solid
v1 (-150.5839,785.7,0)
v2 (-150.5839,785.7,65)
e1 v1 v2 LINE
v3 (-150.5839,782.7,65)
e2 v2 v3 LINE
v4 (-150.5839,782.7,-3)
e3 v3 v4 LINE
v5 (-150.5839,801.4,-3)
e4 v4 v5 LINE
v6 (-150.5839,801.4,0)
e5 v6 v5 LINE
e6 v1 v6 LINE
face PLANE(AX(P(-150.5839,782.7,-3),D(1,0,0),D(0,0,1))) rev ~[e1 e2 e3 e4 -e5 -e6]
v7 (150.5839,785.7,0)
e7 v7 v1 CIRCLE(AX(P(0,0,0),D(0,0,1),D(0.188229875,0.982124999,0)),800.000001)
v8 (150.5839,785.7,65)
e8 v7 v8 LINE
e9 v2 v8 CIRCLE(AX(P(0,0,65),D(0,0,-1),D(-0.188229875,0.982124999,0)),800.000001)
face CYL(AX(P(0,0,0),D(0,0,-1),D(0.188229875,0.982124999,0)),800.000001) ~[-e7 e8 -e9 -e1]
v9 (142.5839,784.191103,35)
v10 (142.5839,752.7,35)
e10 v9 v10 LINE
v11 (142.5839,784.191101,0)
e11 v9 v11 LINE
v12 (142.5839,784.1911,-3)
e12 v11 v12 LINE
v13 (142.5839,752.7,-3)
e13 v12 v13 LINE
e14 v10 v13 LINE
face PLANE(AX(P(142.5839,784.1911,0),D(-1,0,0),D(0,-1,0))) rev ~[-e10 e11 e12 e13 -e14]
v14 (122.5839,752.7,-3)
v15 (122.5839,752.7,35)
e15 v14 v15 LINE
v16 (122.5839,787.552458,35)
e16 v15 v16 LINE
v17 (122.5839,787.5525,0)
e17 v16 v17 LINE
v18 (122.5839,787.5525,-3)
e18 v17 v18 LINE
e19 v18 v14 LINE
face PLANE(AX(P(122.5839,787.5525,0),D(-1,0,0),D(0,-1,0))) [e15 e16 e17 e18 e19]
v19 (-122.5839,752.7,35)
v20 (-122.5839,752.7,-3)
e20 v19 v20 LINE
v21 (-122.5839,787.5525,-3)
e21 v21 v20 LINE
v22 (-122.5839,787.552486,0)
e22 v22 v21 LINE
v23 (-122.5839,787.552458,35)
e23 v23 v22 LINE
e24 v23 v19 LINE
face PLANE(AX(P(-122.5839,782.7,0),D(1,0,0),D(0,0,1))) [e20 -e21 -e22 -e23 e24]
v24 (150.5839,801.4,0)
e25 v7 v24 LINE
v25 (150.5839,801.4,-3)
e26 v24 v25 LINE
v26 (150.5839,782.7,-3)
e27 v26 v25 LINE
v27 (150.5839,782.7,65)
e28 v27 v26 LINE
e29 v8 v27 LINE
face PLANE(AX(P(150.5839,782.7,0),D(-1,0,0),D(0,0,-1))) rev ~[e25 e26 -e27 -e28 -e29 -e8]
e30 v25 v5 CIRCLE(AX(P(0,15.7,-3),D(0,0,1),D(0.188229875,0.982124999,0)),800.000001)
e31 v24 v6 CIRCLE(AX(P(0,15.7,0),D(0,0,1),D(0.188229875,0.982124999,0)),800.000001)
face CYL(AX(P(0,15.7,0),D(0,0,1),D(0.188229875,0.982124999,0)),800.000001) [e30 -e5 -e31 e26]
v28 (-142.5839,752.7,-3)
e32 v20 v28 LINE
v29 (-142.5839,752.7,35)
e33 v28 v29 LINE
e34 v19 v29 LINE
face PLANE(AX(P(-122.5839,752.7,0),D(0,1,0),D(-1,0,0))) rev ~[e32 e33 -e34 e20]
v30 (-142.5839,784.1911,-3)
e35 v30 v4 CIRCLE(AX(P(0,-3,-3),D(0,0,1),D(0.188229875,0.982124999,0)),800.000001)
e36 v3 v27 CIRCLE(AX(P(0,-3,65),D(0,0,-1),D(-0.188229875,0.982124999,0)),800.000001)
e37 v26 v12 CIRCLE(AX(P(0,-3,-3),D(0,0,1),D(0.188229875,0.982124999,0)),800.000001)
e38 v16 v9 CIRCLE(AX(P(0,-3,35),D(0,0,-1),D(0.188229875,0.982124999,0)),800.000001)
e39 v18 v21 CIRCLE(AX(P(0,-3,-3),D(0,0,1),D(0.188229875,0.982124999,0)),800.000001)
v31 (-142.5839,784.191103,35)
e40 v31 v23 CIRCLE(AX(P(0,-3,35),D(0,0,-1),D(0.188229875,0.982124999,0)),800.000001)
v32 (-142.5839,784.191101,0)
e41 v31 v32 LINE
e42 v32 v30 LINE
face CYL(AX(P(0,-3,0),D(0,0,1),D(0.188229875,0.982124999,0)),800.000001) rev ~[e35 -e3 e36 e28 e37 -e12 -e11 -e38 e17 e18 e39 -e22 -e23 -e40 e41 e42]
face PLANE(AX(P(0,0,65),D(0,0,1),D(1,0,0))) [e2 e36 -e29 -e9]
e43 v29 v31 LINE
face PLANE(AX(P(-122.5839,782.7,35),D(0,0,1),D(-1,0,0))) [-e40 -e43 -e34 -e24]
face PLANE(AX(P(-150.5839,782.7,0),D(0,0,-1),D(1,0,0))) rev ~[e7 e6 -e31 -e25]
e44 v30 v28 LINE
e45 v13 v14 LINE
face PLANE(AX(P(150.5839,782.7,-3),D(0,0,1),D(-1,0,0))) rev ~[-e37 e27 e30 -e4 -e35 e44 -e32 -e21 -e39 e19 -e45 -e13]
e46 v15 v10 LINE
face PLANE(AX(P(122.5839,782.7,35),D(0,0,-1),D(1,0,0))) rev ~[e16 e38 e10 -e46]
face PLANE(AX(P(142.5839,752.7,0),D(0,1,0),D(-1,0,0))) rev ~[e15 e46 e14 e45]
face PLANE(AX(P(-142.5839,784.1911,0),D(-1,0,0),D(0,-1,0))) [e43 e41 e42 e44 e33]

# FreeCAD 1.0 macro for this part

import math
import FreeCAD as App
import Part
import Sketcher
from FreeCAD import Vector
Q = App.Units.Quantity

doc = App.newDocument("Part")
params = doc.addObject("Spreadsheet::Sheet", "Params")
for row, (alias, value) in enumerate([
    ("sketch1_height", "3 mm"),
    ("sketch1_radius", "800 mm"),
    ("pad1_length", "65 mm"),
    ("sketch2_width", "20 mm"),
    ("sketch2_height", "35 mm"),
    ("sketch3_width", "20 mm"),
    ("sketch3_height", "35 mm"),
    ("pad3_length", "30 mm"),
    ("sketch4_height", "3 mm"),
    ("pad4_length", "50 mm"),
    ("sketch5_radius", "800 mm"),
    ("pocket1_length", "10 mm"),
    ("sketch6_radius", "800 mm"),
    ("sketch6_height", "31.3 mm"),
    ("pocket2_length", "10 mm"),
    ("sketch7_radius", "800 mm"),
    ("sketch7_width", "20 mm"),
    ("pad5_length", "3 mm"),
], start=1):
    params.set(f"A{row}", alias)
    params.set(f"B{row}", "=" + value)
    params.setAlias(f"B{row}", alias)

body = doc.addObject("PartDesign::Body", "Body")

# Sketch on XY plane
sketch1 = doc.addObject("Sketcher::SketchObject", "Sketch")
body.addObject(sketch1)
sketch1.AttachmentSupport = (doc.XY_Plane, [""])
sketch1.MapMode = "FlatFace"
sketch1.addGeometry([
    Part.LineSegment(Vector(-150.5839, 785.7, 0), Vector(-150.5839, 782.7, 0)),
    Part.ArcOfCircle(Part.Circle(Vector(0, -3, 0), Vector(0, 0, 1), 800.000001), math.radians(79.1505), math.radians(100.8495)),
    Part.LineSegment(Vector(150.5839, 782.7, 0), Vector(150.5839, 785.7, 0)),
    Part.ArcOfCircle(Part.Circle(Vector(0, 0, 0), Vector(0, 0, 1), 800.000001), math.radians(79.1505), math.radians(100.8495)),
], False)
sketch1.addConstraint([
    Sketcher.Constraint("Coincident", 0, 2, 1, 2),
    Sketcher.Constraint("Coincident", 1, 1, 2, 1),
    Sketcher.Constraint("Coincident", 2, 2, 3, 1),
    Sketcher.Constraint("Coincident", 3, 2, 0, 1),
    Sketcher.Constraint("Vertical", 0),
    Sketcher.Constraint("Vertical", 2),
    Sketcher.Constraint("Coincident", 3, 3, -1, 1),
    Sketcher.Constraint("Equal", 1, 3),
    Sketcher.Constraint("PointOnObject", 1, 3, -2),
    Sketcher.Constraint("DistanceY", 0, 2, 0, 1, Q("3 mm")),
    Sketcher.Constraint("Radius", 1, Q("800 mm")),
    Sketcher.Constraint("DistanceY", 0, 2, 2, 2, Q("3 mm")),
    Sketcher.Constraint("DistanceY", -1, 1, 2, 2, Q("785.7 mm")),
])
sketch1.setExpression("Constraints[9]", "Params.sketch1_height")
sketch1.setExpression("Constraints[10]", "Params.sketch1_radius")
pad1 = doc.addObject("PartDesign::Pad", "Pad")
body.addObject(pad1)
pad1.Profile = sketch1
pad1.setExpression("Length", "Params.pad1_length")

# Sketch on XZ plane
sketch2 = doc.addObject("Sketcher::SketchObject", "Sketch001")
body.addObject(sketch2)
sketch2.AttachmentSupport = (doc.XZ_Plane, [""])
sketch2.MapMode = "FlatFace"
sketch2.AttachmentOffset = App.Placement(Vector(0, 0, -782.7), App.Rotation())
sketch2.addGeometry([
    Part.LineSegment(Vector(-142.5839, 0, 0), Vector(-122.5839, 0, 0)),  # 0
    Part.LineSegment(Vector(-122.5839, 0, 0), Vector(-122.5839, 35, 0)),  # 1
    Part.LineSegment(Vector(-122.5839, 35, 0), Vector(-142.5839, 35, 0)),  # 2
    Part.LineSegment(Vector(-142.5839, 35, 0), Vector(-142.5839, 0, 0)),  # 3
    Part.LineSegment(Vector(122.5839, 0, 0), Vector(142.5839, 0, 0)),  # 4
    Part.LineSegment(Vector(142.5839, 0, 0), Vector(142.5839, 35, 0)),  # 5
    Part.LineSegment(Vector(142.5839, 35, 0), Vector(122.5839, 35, 0)),  # 6
    Part.LineSegment(Vector(122.5839, 35, 0), Vector(122.5839, 0, 0)),  # 7
], False)
sketch2.addConstraint([
    Sketcher.Constraint("Coincident", 0, 2, 1, 1),
    Sketcher.Constraint("Coincident", 1, 2, 2, 1),
    Sketcher.Constraint("Coincident", 2, 2, 3, 1),
    Sketcher.Constraint("Coincident", 3, 2, 0, 1),
    Sketcher.Constraint("Coincident", 4, 2, 5, 1),
    Sketcher.Constraint("Coincident", 5, 2, 6, 1),
    Sketcher.Constraint("Coincident", 6, 2, 7, 1),
    Sketcher.Constraint("Coincident", 7, 2, 4, 1),
    Sketcher.Constraint("Horizontal", 0),
    Sketcher.Constraint("Vertical", 1),
    Sketcher.Constraint("Horizontal", 2),
    Sketcher.Constraint("Vertical", 3),
    Sketcher.Constraint("Horizontal", 4),
    Sketcher.Constraint("Vertical", 5),
    Sketcher.Constraint("Horizontal", 6),
    Sketcher.Constraint("Vertical", 7),
    Sketcher.Constraint("Symmetric", 3, 2, 4, 2, -1, 1),
    Sketcher.Constraint("Symmetric", 1, 2, 6, 2, -2),
    Sketcher.Constraint("PointOnObject", 0, 2, -1),
    Sketcher.Constraint("DistanceX", 0, 1, 0, 2, Q("20 mm")),
    Sketcher.Constraint("DistanceY", 1, 1, 1, 2, Q("35 mm")),
    Sketcher.Constraint("DistanceX", 0, 2, -1, 1, Q("122.584 mm")),
])
sketch2.setExpression("Constraints[19]", "Params.sketch2_width")
sketch2.setExpression("Constraints[20]", "Params.sketch2_height")
pad2 = doc.addObject("PartDesign::Pad", "Pad001")
body.addObject(pad2)
pad2.Profile = sketch2
pad2.Type = "UpToFirst"
pad2.Reversed = True

# Sketch on XZ plane
sketch3 = doc.addObject("Sketcher::SketchObject", "Sketch002")
body.addObject(sketch3)
sketch3.AttachmentSupport = (doc.XZ_Plane, [""])
sketch3.MapMode = "FlatFace"
sketch3.AttachmentOffset = App.Placement(Vector(0, 0, -782.7), App.Rotation())
sketch3.addGeometry([
    Part.LineSegment(Vector(-122.5839, 0, 0), Vector(-122.5839, 35, 0)),  # 0
    Part.LineSegment(Vector(-122.5839, 35, 0), Vector(-142.5839, 35, 0)),  # 1
    Part.LineSegment(Vector(-142.5839, 35, 0), Vector(-142.5839, 0, 0)),  # 2
    Part.LineSegment(Vector(-142.5839, 0, 0), Vector(-122.5839, 0, 0)),  # 3
    Part.LineSegment(Vector(142.5839, 35, 0), Vector(122.5839, 35, 0)),  # 4
    Part.LineSegment(Vector(122.5839, 35, 0), Vector(122.5839, 0, 0)),  # 5
    Part.LineSegment(Vector(122.5839, 0, 0), Vector(142.5839, 0, 0)),  # 6
    Part.LineSegment(Vector(142.5839, 0, 0), Vector(142.5839, 35, 0)),  # 7
], False)
sketch3.addConstraint([
    Sketcher.Constraint("Coincident", 0, 2, 1, 1),
    Sketcher.Constraint("Coincident", 1, 2, 2, 1),
    Sketcher.Constraint("Coincident", 2, 2, 3, 1),
    Sketcher.Constraint("Coincident", 3, 2, 0, 1),
    Sketcher.Constraint("Coincident", 4, 2, 5, 1),
    Sketcher.Constraint("Coincident", 5, 2, 6, 1),
    Sketcher.Constraint("Coincident", 6, 2, 7, 1),
    Sketcher.Constraint("Coincident", 7, 2, 4, 1),
    Sketcher.Constraint("Vertical", 0),
    Sketcher.Constraint("Horizontal", 1),
    Sketcher.Constraint("Vertical", 2),
    Sketcher.Constraint("Horizontal", 3),
    Sketcher.Constraint("Horizontal", 4),
    Sketcher.Constraint("Vertical", 5),
    Sketcher.Constraint("Horizontal", 6),
    Sketcher.Constraint("Vertical", 7),
    Sketcher.Constraint("Symmetric", 3, 2, 5, 2, -1, 1),
    Sketcher.Constraint("Symmetric", 2, 2, 6, 2, -2),
    Sketcher.Constraint("Horizontal", 1, 2, 4, 2),
    Sketcher.Constraint("DistanceX", 1, 2, 1, 1, Q("20 mm")),
    Sketcher.Constraint("DistanceY", 0, 1, 0, 2, Q("35 mm")),
    Sketcher.Constraint("DistanceX", 0, 2, -1, 1, Q("122.584 mm")),
])
sketch3.setExpression("Constraints[19]", "Params.sketch3_width")
sketch3.setExpression("Constraints[20]", "Params.sketch3_height")
pad3 = doc.addObject("PartDesign::Pad", "Pad002")
body.addObject(pad3)
pad3.Profile = sketch3
pad3.setExpression("Length", "Params.pad3_length")

# Sketch on XZ plane
sketch4 = doc.addObject("Sketcher::SketchObject", "Sketch003")
body.addObject(sketch4)
sketch4.AttachmentSupport = (doc.XZ_Plane, [""])
sketch4.MapMode = "FlatFace"
sketch4.AttachmentOffset = App.Placement(Vector(0, 0, -782.7), App.Rotation())
sketch4.addGeometry([
    Part.LineSegment(Vector(150.5839, -3, 0), Vector(150.5839, 0, 0)),
    Part.LineSegment(Vector(150.5839, 0, 0), Vector(-150.5839, 0, 0)),
    Part.LineSegment(Vector(-150.5839, 0, 0), Vector(-150.5839, -3, 0)),
    Part.LineSegment(Vector(-150.5839, -3, 0), Vector(150.5839, -3, 0)),
], False)
sketch4.addConstraint([
    Sketcher.Constraint("Coincident", 0, 2, 1, 1),
    Sketcher.Constraint("Coincident", 1, 2, 2, 1),
    Sketcher.Constraint("Coincident", 2, 2, 3, 1),
    Sketcher.Constraint("Coincident", 3, 2, 0, 1),
    Sketcher.Constraint("Vertical", 0),
    Sketcher.Constraint("Horizontal", 1),
    Sketcher.Constraint("Vertical", 2),
    Sketcher.Constraint("Horizontal", 3),
    Sketcher.Constraint("Symmetric", 0, 2, 1, 2, -1, 1),
    Sketcher.Constraint("DistanceY", 0, 1, 0, 2, Q("3 mm")),
    Sketcher.Constraint("DistanceX", 1, 2, 1, 1, Q("301.1678 mm")),
])
sketch4.setExpression("Constraints[9]", "Params.sketch4_height")
pad4 = doc.addObject("PartDesign::Pad", "Pad003")
body.addObject(pad4)
pad4.Profile = sketch4
pad4.setExpression("Length", "Params.pad4_length")
pad4.Reversed = True

# Sketch on XY plane
sketch5 = doc.addObject("Sketcher::SketchObject", "Sketch004")
body.addObject(sketch5)
sketch5.AttachmentSupport = (doc.XY_Plane, [""])
sketch5.MapMode = "FlatFace"
sketch5.addGeometry([
    Part.LineSegment(Vector(-150.5839, 782.7, 0), Vector(150.5839, 782.7, 0)),
    Part.ArcOfCircle(Part.Circle(Vector(0, -3, 0), Vector(0, 0, 1), 800.000001), math.radians(79.1505), math.radians(100.8495)),
], False)
sketch5.addConstraint([
    Sketcher.Constraint("Coincident", 0, 1, 1, 2),
    Sketcher.Constraint("Coincident", 1, 1, 0, 2),
    Sketcher.Constraint("Horizontal", 0),
    Sketcher.Constraint("PointOnObject", 1, 3, -2),
    Sketcher.Constraint("Radius", 1, Q("800 mm")),
    Sketcher.Constraint("DistanceY", 1, 3, -1, 1, Q("3 mm")),
    Sketcher.Constraint("DistanceY", -1, 1, 0, 1, Q("782.7 mm")),
])
sketch5.setExpression("Constraints[4]", "Params.sketch5_radius")
pocket1 = doc.addObject("PartDesign::Pocket", "Pocket")
body.addObject(pocket1)
pocket1.Profile = sketch5
pocket1.setExpression("Length", "Params.pocket1_length")

# Sketch on XY plane
sketch6 = doc.addObject("Sketcher::SketchObject", "Sketch005")
body.addObject(sketch6)
sketch6.AttachmentSupport = (doc.XY_Plane, [""])
sketch6.MapMode = "FlatFace"
sketch6.addGeometry([
    Part.ArcOfCircle(Part.Circle(Vector(0, 15.7, 0), Vector(0, 0, 1), 800.000001), math.radians(79.1505), math.radians(100.8495)),
    Part.LineSegment(Vector(150.5839, 801.4, 0), Vector(150.5839, 832.7, 0)),
    Part.LineSegment(Vector(150.5839, 832.7, 0), Vector(-150.5839, 832.7, 0)),
    Part.LineSegment(Vector(-150.5839, 832.7, 0), Vector(-150.5839, 801.4, 0)),
], False)
sketch6.addConstraint([
    Sketcher.Constraint("Coincident", 0, 1, 1, 1),
    Sketcher.Constraint("Coincident", 1, 2, 2, 1),
    Sketcher.Constraint("Coincident", 2, 2, 3, 1),
    Sketcher.Constraint("Coincident", 3, 2, 0, 2),
    Sketcher.Constraint("Vertical", 1),
    Sketcher.Constraint("Horizontal", 2),
    Sketcher.Constraint("Vertical", 3),
    Sketcher.Constraint("PointOnObject", 0, 3, -2),
    Sketcher.Constraint("Equal", 1, 3),
    Sketcher.Constraint("Radius", 0, Q("800 mm")),
    Sketcher.Constraint("DistanceY", 1, 1, 1, 2, Q("31.3 mm")),
    Sketcher.Constraint("DistanceY", 0, 3, 1, 2, Q("817 mm")),
    Sketcher.Constraint("DistanceY", -1, 1, 0, 3, Q("15.7 mm")),
])
sketch6.setExpression("Constraints[9]", "Params.sketch6_radius")
sketch6.setExpression("Constraints[10]", "Params.sketch6_height")
pocket2 = doc.addObject("PartDesign::Pocket", "Pocket001")
body.addObject(pocket2)
pocket2.Profile = sketch6
pocket2.setExpression("Length", "Params.pocket2_length")

# Sketch on XY plane
sketch7 = doc.addObject("Sketcher::SketchObject", "Sketch006")
body.addObject(sketch7)
sketch7.AttachmentSupport = (doc.XY_Plane, [""])
sketch7.MapMode = "FlatFace"
sketch7.addGeometry([
    Part.LineSegment(Vector(-142.5839, 752.7, 0), Vector(-142.5839, 784.1911, 0)),  # 0
    Part.ArcOfCircle(Part.Circle(Vector(0.047744, -3.273463, 0), Vector(0, 0, 1), 800.277592), math.radians(98.814527), math.radians(100.266546)),  # 1
    Part.LineSegment(Vector(-122.5839, 787.5525, 0), Vector(-122.5839, 752.7, 0)),  # 2
    Part.LineSegment(Vector(-122.5839, 752.7, 0), Vector(-142.5839, 752.7, 0)),  # 3
    Part.LineSegment(Vector(122.5839, 752.7, 0), Vector(122.5839, 787.5525, 0)),  # 4
    Part.ArcOfCircle(Part.Circle(Vector(0, -3, 0), Vector(0, 0, 1), 800.000001), math.radians(79.733328), math.radians(81.185851)),  # 5
    Part.LineSegment(Vector(142.5839, 784.1911, 0), Vector(142.5839, 752.7, 0)),  # 6
    Part.LineSegment(Vector(142.5839, 752.7, 0), Vector(122.5839, 752.7, 0)),  # 7
], False)
sketch7.addConstraint([
    Sketcher.Constraint("Coincident", 0, 2, 1, 2),
    Sketcher.Constraint("Coincident", 1, 1, 2, 1),
    Sketcher.Constraint("Coincident", 2, 2, 3, 1),
    Sketcher.Constraint("Coincident", 3, 2, 0, 1),
    Sketcher.Constraint("Coincident", 4, 2, 5, 2),
    Sketcher.Constraint("Coincident", 5, 1, 6, 1),
    Sketcher.Constraint("Coincident", 6, 2, 7, 1),
    Sketcher.Constraint("Coincident", 7, 2, 4, 1),
    Sketcher.Constraint("Vertical", 0),
    Sketcher.Constraint("Vertical", 2),
    Sketcher.Constraint("Horizontal", 3),
    Sketcher.Constraint("Vertical", 4),
    Sketcher.Constraint("Vertical", 6),
    Sketcher.Constraint("Horizontal", 7),
    Sketcher.Constraint("Symmetric", 3, 2, 6, 2, -2),
    Sketcher.Constraint("PointOnObject", 5, 3, -2),
    Sketcher.Constraint("Horizontal", 1, 1, 4, 2),
    Sketcher.Constraint("Equal", 3, 7),
    Sketcher.Constraint("Equal", 0, 6),
    Sketcher.Constraint("Radius", 5, Q("800 mm")),
    Sketcher.Constraint("DistanceX", 3, 2, 3, 1, Q("20 mm")),
    Sketcher.Constraint("DistanceY", 5, 3, -1, 1, Q("3 mm")),
    Sketcher.Constraint("DistanceY", -1, 1, 2, 2, Q("752.7 mm")),
    Sketcher.Constraint("Radius", 1, Q("800.2776 mm")),
    Sketcher.Constraint("DistanceY", 0, 1, 0, 2, Q("31.491 mm")),
])
sketch7.setExpression("Constraints[19]", "Params.sketch7_radius")
sketch7.setExpression("Constraints[20]", "Params.sketch7_width")
pad5 = doc.addObject("PartDesign::Pad", "Pad004")
body.addObject(pad5)
pad5.Profile = sketch7
pad5.setExpression("Length", "Params.pad5_length")
pad5.Reversed = True

doc.recompute()
